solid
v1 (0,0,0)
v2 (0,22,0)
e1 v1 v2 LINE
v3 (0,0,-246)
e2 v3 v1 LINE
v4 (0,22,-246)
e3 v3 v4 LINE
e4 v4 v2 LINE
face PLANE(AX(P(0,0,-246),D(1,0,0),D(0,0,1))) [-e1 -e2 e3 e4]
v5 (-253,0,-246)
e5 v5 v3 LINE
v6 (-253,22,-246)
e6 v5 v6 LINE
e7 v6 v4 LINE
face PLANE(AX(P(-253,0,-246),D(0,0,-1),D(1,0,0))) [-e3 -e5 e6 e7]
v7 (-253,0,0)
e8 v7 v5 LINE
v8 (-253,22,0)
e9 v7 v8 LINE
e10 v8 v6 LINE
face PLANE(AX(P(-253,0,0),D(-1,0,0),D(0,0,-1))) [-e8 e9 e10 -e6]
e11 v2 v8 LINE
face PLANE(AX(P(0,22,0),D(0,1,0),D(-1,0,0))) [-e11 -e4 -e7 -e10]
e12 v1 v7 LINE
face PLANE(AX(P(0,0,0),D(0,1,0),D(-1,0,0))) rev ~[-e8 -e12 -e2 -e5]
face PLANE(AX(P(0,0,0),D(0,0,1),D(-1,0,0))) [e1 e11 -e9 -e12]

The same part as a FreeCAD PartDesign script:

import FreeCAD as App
import Part
import Sketcher
from FreeCAD import Vector
Q = App.Units.Quantity

doc = App.newDocument("Part")
params = doc.addObject("Spreadsheet::Sheet", "Params")
for row, (alias, value) in enumerate([
    ("sketch1_width", "253 mm"),
    ("sketch1_height", "246 mm"),
    ("pad1_length", "22 mm"),
], start=1):
    params.set(f"A{row}", alias)
    params.set(f"B{row}", "=" + value)
    params.setAlias(f"B{row}", alias)

body = doc.addObject("PartDesign::Body", "Body")

# Sketch on XZ plane
sketch1 = body.newObject("Sketcher::SketchObject", "Sketch")
sketch1.AttachmentSupport = (doc.getObject("XZ_Plane"), [""])
sketch1.MapMode = "FlatFace"
sketch1.addGeometry(Part.LineSegment(Vector(-253, 0, 0), Vector(0, 0, 0)), False)
sketch1.addGeometry(Part.LineSegment(Vector(0, 0, 0), Vector(0, -246, 0)), False)
sketch1.addGeometry(Part.LineSegment(Vector(0, -246, 0), Vector(-253, -246, 0)), False)
sketch1.addGeometry(Part.LineSegment(Vector(-253, -246, 0), Vector(-253, 0, 0)), False)
sketch1.addConstraint(Sketcher.Constraint("Coincident", 0, 2, 1, 1))
sketch1.addConstraint(Sketcher.Constraint("Coincident", 1, 2, 2, 1))
sketch1.addConstraint(Sketcher.Constraint("Coincident", 2, 2, 3, 1))
sketch1.addConstraint(Sketcher.Constraint("Coincident", 3, 2, 0, 1))
sketch1.addConstraint(Sketcher.Constraint("Horizontal", 0))
sketch1.addConstraint(Sketcher.Constraint("Vertical", 1))
sketch1.addConstraint(Sketcher.Constraint("Horizontal", 2))
sketch1.addConstraint(Sketcher.Constraint("Vertical", 3))
sketch1.addConstraint(Sketcher.Constraint("Coincident", 0, 2, -1, 1))
sketch1.addConstraint(Sketcher.Constraint("DistanceX", 0, 1, 0, 2, Q("253 mm")))
sketch1.addConstraint(Sketcher.Constraint("DistanceY", 1, 2, 1, 1, Q("246 mm")))
sketch1.setExpression("Constraints[9]", "Params.sketch1_width")
sketch1.setExpression("Constraints[10]", "Params.sketch1_height")
pad1 = body.newObject("PartDesign::Pad", "Pad")
pad1.Profile = sketch1
pad1.setExpression("Length", "Params.pad1_length")
pad1.Reversed = True

doc.recompute()
